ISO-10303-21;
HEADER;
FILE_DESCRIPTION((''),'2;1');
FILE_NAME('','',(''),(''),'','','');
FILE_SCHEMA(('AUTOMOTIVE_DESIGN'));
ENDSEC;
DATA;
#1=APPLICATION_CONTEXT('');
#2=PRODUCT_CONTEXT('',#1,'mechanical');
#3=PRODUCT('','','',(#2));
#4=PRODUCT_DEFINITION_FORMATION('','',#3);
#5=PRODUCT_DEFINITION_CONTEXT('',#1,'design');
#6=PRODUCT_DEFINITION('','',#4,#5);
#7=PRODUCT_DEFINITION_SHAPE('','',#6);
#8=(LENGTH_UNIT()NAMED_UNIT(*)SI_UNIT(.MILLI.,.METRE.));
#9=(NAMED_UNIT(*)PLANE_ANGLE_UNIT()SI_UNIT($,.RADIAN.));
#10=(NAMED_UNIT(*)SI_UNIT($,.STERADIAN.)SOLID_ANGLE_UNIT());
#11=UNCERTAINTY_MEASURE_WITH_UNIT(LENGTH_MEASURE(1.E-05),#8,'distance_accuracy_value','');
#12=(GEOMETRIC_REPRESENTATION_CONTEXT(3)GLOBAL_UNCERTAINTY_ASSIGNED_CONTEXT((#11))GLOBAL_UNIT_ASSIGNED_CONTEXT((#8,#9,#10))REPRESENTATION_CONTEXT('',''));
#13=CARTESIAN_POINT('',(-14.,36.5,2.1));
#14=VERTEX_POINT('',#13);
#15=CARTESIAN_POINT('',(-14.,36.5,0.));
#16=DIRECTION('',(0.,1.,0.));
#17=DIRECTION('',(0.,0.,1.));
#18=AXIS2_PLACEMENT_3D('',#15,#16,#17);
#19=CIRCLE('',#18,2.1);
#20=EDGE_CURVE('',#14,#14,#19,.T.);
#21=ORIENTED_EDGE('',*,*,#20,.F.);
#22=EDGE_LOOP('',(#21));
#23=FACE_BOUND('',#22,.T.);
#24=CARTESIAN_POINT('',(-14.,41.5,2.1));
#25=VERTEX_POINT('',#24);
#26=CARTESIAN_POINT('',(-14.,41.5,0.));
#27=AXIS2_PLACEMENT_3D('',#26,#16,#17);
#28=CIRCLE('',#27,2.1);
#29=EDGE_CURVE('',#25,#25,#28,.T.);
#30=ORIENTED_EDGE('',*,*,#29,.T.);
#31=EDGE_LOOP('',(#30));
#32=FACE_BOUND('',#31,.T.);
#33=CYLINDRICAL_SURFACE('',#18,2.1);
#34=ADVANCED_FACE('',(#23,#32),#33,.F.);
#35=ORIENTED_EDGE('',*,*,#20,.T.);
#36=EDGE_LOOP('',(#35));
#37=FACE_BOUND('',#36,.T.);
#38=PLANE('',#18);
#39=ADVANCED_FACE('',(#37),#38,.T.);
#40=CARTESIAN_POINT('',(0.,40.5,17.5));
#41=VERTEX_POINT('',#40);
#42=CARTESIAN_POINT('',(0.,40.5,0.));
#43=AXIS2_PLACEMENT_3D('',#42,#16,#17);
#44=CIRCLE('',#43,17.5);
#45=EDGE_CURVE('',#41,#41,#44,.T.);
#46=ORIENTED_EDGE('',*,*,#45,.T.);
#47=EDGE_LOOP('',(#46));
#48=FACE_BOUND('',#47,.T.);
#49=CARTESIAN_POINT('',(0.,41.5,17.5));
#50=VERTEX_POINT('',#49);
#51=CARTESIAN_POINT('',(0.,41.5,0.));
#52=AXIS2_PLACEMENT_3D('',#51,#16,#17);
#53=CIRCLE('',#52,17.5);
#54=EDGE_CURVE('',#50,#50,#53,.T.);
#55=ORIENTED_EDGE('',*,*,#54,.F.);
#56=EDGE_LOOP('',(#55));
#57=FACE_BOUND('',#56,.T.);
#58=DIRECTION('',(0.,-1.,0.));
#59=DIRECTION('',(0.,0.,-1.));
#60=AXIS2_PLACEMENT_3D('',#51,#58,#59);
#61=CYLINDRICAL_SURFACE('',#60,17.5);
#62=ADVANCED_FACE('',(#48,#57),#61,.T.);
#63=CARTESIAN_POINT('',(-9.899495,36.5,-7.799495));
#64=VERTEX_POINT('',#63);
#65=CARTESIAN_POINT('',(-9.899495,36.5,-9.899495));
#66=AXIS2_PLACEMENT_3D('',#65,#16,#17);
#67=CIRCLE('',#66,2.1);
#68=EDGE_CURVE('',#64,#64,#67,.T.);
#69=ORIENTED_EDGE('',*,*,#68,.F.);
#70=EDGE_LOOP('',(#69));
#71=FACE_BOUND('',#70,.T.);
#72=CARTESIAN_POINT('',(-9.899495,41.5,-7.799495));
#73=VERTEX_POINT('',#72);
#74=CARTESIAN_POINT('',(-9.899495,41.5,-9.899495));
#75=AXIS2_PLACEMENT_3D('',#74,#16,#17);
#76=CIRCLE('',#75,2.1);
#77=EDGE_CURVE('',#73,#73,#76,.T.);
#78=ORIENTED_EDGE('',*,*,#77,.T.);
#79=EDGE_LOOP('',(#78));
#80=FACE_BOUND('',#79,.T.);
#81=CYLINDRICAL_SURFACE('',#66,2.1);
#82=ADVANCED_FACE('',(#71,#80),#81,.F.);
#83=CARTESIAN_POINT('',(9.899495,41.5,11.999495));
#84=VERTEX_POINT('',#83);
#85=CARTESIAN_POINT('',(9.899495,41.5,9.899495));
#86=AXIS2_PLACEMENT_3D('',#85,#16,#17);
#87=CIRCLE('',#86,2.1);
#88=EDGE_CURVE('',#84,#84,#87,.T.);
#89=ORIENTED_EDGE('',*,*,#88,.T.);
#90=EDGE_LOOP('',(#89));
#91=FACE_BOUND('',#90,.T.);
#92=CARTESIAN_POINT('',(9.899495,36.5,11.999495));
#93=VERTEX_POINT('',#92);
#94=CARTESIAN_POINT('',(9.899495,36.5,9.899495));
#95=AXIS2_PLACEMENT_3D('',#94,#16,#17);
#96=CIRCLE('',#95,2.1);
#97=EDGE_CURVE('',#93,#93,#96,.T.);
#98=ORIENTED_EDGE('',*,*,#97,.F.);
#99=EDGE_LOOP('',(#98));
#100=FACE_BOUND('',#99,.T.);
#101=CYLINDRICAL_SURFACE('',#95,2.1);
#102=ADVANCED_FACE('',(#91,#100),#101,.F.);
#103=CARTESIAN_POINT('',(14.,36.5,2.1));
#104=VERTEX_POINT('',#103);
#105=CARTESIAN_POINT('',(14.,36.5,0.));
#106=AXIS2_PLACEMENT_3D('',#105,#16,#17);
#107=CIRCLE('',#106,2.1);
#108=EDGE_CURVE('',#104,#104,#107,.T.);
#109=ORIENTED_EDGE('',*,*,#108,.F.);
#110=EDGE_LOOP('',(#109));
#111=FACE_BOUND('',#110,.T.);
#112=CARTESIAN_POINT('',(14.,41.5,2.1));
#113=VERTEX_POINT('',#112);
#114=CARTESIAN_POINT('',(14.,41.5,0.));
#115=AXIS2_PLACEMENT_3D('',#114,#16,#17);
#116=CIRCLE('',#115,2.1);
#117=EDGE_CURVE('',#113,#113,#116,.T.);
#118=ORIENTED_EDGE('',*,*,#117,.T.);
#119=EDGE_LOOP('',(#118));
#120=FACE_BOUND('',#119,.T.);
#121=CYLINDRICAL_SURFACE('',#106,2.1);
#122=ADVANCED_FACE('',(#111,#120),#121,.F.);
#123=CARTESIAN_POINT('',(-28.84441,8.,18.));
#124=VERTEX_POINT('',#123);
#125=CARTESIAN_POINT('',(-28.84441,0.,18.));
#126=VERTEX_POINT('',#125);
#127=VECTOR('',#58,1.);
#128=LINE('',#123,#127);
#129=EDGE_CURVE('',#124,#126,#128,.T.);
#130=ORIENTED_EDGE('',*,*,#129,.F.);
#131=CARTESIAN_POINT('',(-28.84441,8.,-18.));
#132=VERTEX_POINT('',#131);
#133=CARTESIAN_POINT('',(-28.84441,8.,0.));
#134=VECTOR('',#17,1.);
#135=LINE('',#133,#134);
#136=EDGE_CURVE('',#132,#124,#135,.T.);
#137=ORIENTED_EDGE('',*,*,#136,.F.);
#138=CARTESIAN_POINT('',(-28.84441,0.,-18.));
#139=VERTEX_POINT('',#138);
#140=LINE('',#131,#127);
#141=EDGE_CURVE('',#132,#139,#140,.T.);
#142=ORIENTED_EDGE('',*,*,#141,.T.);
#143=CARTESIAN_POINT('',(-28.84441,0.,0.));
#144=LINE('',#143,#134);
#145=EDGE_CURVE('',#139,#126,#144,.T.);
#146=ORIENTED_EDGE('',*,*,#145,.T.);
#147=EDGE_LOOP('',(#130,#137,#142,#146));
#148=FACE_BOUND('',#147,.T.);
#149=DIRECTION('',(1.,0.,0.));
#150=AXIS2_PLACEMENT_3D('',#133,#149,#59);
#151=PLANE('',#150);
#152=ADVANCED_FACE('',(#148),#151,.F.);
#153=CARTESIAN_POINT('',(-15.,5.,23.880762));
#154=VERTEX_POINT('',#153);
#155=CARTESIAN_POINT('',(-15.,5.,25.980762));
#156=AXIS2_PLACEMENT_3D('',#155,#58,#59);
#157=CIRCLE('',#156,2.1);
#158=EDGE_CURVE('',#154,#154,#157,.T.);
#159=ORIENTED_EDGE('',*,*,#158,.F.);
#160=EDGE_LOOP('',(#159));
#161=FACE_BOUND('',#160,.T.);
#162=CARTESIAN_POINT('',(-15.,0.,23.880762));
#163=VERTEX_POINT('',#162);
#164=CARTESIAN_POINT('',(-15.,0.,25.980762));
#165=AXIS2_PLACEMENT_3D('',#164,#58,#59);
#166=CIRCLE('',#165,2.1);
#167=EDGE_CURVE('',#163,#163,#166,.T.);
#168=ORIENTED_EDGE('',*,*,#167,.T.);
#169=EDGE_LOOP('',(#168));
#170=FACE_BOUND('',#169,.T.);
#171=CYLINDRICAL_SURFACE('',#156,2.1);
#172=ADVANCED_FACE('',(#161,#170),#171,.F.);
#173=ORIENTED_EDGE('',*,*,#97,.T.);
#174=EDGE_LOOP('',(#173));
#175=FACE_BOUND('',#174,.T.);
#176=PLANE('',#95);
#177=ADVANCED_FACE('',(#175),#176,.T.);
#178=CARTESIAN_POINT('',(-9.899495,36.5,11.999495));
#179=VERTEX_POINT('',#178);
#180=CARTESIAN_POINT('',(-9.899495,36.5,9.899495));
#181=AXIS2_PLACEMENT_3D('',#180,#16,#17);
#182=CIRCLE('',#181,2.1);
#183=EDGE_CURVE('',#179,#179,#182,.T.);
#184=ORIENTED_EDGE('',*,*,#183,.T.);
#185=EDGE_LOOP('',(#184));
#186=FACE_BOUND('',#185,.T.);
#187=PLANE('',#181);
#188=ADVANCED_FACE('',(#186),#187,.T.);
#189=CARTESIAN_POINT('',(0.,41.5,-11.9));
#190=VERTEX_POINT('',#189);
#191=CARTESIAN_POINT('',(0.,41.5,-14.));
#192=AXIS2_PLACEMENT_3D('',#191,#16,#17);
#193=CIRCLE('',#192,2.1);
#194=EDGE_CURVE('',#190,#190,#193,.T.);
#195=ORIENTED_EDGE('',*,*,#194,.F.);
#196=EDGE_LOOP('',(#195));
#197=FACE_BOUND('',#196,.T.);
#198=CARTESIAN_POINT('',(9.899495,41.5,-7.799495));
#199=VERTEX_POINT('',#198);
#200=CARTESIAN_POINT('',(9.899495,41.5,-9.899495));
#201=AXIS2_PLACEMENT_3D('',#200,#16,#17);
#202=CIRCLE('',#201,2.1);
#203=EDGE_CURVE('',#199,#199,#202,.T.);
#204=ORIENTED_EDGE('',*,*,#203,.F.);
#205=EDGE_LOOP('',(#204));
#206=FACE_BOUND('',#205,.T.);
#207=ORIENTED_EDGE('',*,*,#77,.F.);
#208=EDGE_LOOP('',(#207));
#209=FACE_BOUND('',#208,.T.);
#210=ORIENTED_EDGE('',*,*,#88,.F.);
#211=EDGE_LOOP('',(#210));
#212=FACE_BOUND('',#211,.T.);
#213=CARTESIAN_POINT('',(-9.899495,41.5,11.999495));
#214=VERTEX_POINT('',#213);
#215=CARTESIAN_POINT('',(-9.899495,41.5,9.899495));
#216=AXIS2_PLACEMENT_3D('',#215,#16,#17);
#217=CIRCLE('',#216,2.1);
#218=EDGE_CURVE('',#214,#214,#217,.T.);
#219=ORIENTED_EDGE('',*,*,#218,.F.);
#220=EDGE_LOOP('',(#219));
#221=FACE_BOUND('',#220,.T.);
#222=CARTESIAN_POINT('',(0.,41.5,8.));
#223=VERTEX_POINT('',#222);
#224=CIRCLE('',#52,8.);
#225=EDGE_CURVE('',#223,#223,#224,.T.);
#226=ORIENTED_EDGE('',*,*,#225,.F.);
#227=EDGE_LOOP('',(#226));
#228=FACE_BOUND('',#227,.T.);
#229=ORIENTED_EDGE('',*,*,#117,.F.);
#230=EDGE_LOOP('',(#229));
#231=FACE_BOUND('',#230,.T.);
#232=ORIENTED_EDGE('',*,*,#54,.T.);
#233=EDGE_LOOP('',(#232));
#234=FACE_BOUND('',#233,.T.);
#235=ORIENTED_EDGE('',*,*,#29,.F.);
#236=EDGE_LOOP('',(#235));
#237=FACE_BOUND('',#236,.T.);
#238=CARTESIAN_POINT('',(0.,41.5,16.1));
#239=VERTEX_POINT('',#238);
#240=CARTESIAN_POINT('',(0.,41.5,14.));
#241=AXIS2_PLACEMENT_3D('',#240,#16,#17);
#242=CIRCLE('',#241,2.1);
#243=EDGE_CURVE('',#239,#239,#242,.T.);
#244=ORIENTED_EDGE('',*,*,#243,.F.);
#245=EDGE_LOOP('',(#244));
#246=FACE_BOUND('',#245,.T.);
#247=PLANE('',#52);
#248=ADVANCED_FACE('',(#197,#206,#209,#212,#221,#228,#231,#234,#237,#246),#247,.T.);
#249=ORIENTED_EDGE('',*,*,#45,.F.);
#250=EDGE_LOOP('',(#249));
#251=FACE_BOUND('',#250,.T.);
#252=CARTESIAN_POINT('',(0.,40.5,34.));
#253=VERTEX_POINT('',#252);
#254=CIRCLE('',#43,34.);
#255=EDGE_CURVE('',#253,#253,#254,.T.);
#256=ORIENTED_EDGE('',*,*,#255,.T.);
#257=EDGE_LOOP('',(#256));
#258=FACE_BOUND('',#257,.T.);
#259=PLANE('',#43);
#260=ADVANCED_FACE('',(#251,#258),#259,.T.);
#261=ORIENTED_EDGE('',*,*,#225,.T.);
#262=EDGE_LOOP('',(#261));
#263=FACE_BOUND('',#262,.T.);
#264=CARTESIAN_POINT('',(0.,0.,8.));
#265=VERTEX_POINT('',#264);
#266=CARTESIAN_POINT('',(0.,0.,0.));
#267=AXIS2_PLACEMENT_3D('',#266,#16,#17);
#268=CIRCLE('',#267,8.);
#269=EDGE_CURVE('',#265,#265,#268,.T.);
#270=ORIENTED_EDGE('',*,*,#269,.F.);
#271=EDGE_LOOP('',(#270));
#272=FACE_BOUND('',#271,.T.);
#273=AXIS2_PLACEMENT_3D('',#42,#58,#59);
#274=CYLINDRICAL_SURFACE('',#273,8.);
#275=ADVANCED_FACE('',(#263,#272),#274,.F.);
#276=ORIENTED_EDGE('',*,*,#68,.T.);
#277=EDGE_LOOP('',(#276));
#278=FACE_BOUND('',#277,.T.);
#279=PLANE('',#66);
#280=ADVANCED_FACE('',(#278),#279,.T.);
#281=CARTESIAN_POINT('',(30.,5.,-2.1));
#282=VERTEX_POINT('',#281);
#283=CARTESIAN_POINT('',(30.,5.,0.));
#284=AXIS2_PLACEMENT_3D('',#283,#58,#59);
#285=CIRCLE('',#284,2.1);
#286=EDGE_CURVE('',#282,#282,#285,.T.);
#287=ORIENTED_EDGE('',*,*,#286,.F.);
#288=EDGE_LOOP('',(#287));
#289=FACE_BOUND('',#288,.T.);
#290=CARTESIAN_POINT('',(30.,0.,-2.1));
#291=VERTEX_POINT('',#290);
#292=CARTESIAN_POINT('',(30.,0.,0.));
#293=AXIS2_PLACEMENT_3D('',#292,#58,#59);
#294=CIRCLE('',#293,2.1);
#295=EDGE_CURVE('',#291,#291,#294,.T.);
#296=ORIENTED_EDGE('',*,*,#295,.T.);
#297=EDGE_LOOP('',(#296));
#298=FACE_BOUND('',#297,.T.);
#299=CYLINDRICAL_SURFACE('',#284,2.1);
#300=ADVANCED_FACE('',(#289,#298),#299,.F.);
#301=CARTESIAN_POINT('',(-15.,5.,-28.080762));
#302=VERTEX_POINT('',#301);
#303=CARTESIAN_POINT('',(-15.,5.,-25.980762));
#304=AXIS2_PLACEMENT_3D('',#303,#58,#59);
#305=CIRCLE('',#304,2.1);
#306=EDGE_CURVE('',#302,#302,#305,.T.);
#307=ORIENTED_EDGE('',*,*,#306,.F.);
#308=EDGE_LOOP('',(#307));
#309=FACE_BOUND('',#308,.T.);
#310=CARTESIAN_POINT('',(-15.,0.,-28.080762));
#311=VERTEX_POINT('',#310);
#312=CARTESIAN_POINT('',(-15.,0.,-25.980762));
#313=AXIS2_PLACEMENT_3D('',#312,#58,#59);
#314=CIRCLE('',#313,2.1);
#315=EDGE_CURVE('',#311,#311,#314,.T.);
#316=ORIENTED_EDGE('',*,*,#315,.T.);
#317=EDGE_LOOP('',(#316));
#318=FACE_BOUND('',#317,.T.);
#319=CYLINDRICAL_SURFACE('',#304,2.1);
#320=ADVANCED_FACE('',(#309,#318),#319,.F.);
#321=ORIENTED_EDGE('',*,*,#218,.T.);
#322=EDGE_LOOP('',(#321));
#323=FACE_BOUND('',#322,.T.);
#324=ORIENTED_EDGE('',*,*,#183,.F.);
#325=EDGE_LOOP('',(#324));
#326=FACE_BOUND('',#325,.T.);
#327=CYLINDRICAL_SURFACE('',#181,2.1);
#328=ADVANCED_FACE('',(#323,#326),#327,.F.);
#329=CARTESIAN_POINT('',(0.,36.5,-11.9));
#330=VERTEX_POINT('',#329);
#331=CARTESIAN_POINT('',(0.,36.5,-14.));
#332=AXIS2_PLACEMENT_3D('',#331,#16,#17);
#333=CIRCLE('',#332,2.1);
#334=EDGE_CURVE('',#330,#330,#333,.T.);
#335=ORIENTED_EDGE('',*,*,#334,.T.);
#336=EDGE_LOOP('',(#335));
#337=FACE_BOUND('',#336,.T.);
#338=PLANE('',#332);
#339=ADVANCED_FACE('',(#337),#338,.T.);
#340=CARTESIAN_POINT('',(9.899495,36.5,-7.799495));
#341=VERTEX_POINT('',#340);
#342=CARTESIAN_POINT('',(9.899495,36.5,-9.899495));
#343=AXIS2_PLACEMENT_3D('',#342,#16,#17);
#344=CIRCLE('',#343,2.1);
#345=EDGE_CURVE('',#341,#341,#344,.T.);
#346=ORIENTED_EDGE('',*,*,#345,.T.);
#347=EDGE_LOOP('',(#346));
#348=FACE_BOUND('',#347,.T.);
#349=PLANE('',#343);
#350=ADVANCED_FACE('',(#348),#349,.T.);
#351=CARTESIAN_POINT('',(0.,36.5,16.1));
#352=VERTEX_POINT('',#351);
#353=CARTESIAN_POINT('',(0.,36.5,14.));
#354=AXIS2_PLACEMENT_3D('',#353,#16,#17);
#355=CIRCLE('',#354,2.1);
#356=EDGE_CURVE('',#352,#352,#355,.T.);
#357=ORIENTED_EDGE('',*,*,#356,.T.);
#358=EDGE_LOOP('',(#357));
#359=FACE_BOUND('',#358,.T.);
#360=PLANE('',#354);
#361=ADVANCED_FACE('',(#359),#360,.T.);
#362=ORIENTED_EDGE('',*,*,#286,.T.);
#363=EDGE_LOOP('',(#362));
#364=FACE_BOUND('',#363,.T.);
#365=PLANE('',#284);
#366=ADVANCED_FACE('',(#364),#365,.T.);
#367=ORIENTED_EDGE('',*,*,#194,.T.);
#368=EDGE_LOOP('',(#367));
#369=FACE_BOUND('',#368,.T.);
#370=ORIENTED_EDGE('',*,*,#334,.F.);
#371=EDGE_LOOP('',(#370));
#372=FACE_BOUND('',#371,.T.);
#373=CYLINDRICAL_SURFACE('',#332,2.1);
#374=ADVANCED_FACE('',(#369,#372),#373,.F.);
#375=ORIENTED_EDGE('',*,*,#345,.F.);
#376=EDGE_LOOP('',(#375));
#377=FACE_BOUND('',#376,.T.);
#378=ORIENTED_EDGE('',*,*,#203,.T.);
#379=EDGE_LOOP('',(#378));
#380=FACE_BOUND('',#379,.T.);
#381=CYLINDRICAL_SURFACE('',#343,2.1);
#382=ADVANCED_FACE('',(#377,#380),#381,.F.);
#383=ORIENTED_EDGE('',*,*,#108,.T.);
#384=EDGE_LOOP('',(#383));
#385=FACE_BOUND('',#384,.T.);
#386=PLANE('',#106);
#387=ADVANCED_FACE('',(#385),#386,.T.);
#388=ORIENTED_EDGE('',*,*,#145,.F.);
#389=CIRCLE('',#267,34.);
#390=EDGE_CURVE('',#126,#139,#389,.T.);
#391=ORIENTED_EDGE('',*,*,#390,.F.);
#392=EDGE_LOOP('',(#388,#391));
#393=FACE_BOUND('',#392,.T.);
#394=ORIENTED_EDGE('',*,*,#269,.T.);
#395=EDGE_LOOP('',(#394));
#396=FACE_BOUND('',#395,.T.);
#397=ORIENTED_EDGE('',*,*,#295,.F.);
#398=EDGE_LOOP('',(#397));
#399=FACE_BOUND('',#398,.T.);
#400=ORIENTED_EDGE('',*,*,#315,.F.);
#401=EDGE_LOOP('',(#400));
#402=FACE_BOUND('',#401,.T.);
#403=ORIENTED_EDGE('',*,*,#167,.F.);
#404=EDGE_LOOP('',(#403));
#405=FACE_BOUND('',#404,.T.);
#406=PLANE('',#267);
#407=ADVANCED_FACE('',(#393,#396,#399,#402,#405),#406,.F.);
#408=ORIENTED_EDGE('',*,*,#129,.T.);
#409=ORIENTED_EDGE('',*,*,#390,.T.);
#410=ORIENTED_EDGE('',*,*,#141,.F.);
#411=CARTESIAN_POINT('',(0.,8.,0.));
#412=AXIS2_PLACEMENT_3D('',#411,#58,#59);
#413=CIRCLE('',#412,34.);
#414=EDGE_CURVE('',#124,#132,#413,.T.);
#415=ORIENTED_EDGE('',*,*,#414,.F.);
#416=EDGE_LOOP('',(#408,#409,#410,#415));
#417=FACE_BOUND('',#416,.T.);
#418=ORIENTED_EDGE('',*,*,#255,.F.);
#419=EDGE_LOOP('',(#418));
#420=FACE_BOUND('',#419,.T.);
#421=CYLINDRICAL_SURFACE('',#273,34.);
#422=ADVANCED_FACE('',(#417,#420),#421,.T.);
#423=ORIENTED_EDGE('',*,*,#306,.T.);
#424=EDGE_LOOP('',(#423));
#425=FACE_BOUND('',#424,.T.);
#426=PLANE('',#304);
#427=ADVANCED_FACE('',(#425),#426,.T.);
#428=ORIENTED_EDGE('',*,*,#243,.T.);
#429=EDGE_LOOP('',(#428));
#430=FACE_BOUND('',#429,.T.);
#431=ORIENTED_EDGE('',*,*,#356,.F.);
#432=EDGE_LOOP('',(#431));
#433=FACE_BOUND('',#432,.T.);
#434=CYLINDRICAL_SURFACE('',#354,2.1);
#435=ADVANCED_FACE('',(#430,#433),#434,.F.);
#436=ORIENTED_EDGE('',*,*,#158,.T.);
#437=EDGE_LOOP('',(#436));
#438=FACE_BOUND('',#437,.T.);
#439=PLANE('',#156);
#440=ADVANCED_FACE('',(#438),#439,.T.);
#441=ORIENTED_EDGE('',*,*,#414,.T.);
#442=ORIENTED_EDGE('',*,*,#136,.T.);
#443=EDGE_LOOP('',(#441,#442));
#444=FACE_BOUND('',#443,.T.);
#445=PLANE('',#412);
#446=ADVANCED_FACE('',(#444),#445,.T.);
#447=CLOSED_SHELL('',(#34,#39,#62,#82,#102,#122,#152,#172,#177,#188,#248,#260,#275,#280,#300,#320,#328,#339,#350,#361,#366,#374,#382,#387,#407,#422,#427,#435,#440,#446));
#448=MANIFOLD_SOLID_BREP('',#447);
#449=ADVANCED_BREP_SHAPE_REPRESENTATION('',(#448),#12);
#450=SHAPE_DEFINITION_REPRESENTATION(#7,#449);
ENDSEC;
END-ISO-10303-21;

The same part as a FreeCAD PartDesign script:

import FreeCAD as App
import Part
import Sketcher

V = App.Vector
Q = App.Units.Quantity

doc = App.newDocument("Part")
body = doc.addObject("PartDesign::Body", "Body")

sketch1 = body.newObject("Sketcher::SketchObject", "Sketch")
sketch1.AttachmentSupport = (doc.getObject("XZ_Plane"), [""])
sketch1.MapMode = "FlatFace"
sketch1.addGeometry([
    Part.Circle(V(0, 0, 0), V(0, 0, 1), 34),
    Part.Circle(V(0, 0, 0), V(0, 0, 1), 8),
], False)
sketch1.addConstraint([
    Sketcher.Constraint("Coincident", 0, 3, -1, 1),
    Sketcher.Constraint("Coincident", 1, 3, -1, 1),
    Sketcher.Constraint("Diameter", 0, Q("68 mm")),
    Sketcher.Constraint("Diameter", 1, Q("16 mm")),
])
pad1 = body.newObject("PartDesign::Pad", "Pad")
pad1.Profile = sketch1
pad1.Length = 40.5
pad1.Reversed = True

sketch2 = body.newObject("Sketcher::SketchObject", "Sketch001")
sketch2.AttachmentSupport = (doc.getObject("XZ_Plane"), [""])
sketch2.MapMode = "FlatFace"
sketch2.AttachmentOffset = App.Placement(V(0, 0, -40.5), App.Rotation())
sketch2.addGeometry([
    Part.Circle(V(0, 0, 0), V(0, 0, 1), 18),
    Part.Circle(V(0, 0, 0), V(0, 0, 1), 8),
], False)
sketch2.addConstraint([
    Sketcher.Constraint("Coincident", 0, 3, -1, 1),
    Sketcher.Constraint("Coincident", 1, 3, -1, 1),
    Sketcher.Constraint("Diameter", 0, Q("35 mm")),
    Sketcher.Constraint("Diameter", 1, Q("16 mm")),
])
pad2 = body.newObject("PartDesign::Pad", "Pad001")
pad2.Profile = sketch2
pad2.Length = 1
pad2.Reversed = True

sketch3 = body.newObject("Sketcher::SketchObject", "Sketch002")
sketch3.AttachmentSupport = (doc.getObject("XZ_Plane"), [""])
sketch3.MapMode = "FlatFace"
sketch3.AttachmentOffset = App.Placement(V(0, 0, -41.5), App.Rotation())
sketch3.addGeometry([
    Part.Circle(V(14, 0, 0), V(0, 0, 1), 2.1),
    Part.Circle(V(9.9, 9.9, 0), V(0, 0, 1), 2.1),
    Part.Circle(V(0, 14, 0), V(0, 0, 1), 2.1),
    Part.Circle(V(-9.9, 9.9, 0), V(0, 0, 1), 2.1),
    Part.Circle(V(-14, 0, 0), V(0, 0, 1), 2.1),
    Part.Circle(V(-9.9, -9.9, 0), V(0, 0, 1), 2.1),
    Part.Circle(V(0, -14, 0), V(0, 0, 1), 2.1),
    Part.Circle(V(9.9, -9.9, 0), V(0, 0, 1), 2.1),
], False)
sketch3.addConstraint([
    Sketcher.Constraint("Equal", 0, 1),
    Sketcher.Constraint("Equal", 1, 2),
    Sketcher.Constraint("Equal", 2, 3),
    Sketcher.Constraint("Equal", 3, 4),
    Sketcher.Constraint("Equal", 4, 5),
    Sketcher.Constraint("Equal", 5, 6),
    Sketcher.Constraint("Equal", 6, 7),
    Sketcher.Constraint("Symmetric", 0, 3, 4, 3, -1, 1),
    Sketcher.Constraint("Symmetric", 1, 3, 5, 3, -1, 1),
    Sketcher.Constraint("Symmetric", 2, 3, 6, 3, -1, 1),
    Sketcher.Constraint("Symmetric", 3, 3, 7, 3, -1, 1),
    Sketcher.Constraint("Symmetric", 1, 3, 3, 3, -2),
    Sketcher.Constraint("PointOnObject", 0, 3, -1),
    Sketcher.Constraint("PointOnObject", 2, 3, -2),
    Sketcher.Constraint("Diameter", 0, Q("4.2 mm")),
    Sketcher.Constraint("DistanceX", -1, 1, 0, 3, Q("14 mm")),
    Sketcher.Constraint("DistanceY", -1, 1, 2, 3, Q("14 mm")),
    Sketcher.Constraint("DistanceX", 3, 3, 1, 3, Q("19.79899 mm")),
    Sketcher.Constraint("DistanceY", 5, 3, 3, 3, Q("19.79899 mm")),
])
pocket1 = body.newObject("PartDesign::Pocket", "Pocket")
pocket1.Profile = sketch3
pocket1.Length = 5
pocket1.Reversed = True

sketch4 = body.newObject("Sketcher::SketchObject", "Sketch003")
sketch4.AttachmentSupport = (doc.getObject("XZ_Plane"), [""])
sketch4.MapMode = "FlatFace"
sketch4.addGeometry([
    Part.LineSegment(V(-29, -191, 0), V(-29, 191, 0)),
    Part.LineSegment(V(-29, 191, 0), V(-375, 191, 0)),
    Part.LineSegment(V(-375, 191, 0), V(-375, -191, 0)),
    Part.LineSegment(V(-375, -191, 0), V(-29, -191, 0)),
], False)
sketch4.addConstraint([
    Sketcher.Constraint("Coincident", 0, 2, 1, 1),
    Sketcher.Constraint("Coincident", 1, 2, 2, 1),
    Sketcher.Constraint("Coincident", 2, 2, 3, 1),
    Sketcher.Constraint("Coincident", 3, 2, 0, 1),
    Sketcher.Constraint("Vertical", 0),
    Sketcher.Constraint("Horizontal", 1),
    Sketcher.Constraint("Vertical", 2),
    Sketcher.Constraint("Horizontal", 3),
    Sketcher.Constraint("DistanceX", 1, 2, 1, 1, Q("346.273993 mm")),
    Sketcher.Constraint("DistanceY", 0, 1, 0, 2, Q("382.273993 mm")),
    Sketcher.Constraint("DistanceX", 0, 2, -1, 1, Q("28.84441 mm")),
    Sketcher.Constraint("DistanceY", -1, 1, 0, 2, Q("191.136996 mm")),
])
pocket2 = body.newObject("PartDesign::Pocket", "Pocket001")
pocket2.Profile = sketch4
pocket2.Length = 8

sketch5 = body.newObject("Sketcher::SketchObject", "Sketch004")
sketch5.AttachmentSupport = (doc.getObject("XZ_Plane"), [""])
sketch5.MapMode = "FlatFace"
sketch5.addGeometry([
    Part.Circle(V(30, 0, 0), V(0, 0, 1), 2.1),
    Part.Circle(V(-15, -26, 0), V(0, 0, 1), 2.1),
    Part.Circle(V(-15, 26, 0), V(0, 0, 1), 2.1),
], False)
sketch5.addConstraint([
    Sketcher.Constraint("Equal", 0, 1),
    Sketcher.Constraint("Equal", 1, 2),
    Sketcher.Constraint("Symmetric", 1, 3, 2, 3, -1),
    Sketcher.Constraint("PointOnObject", 0, 3, -1),
    Sketcher.Constraint("Diameter", 0, Q("4.2 mm")),
    Sketcher.Constraint("DistanceX", -1, 1, 0, 3, Q("30 mm")),
    Sketcher.Constraint("DistanceX", 1, 3, -1, 1, Q("15 mm")),
    Sketcher.Constraint("DistanceY", 1, 3, -1, 1, Q("25.980762 mm")),
])
pocket3 = body.newObject("PartDesign::Pocket", "Pocket002")
pocket3.Profile = sketch5
pocket3.Length = 5

doc.recompute()
